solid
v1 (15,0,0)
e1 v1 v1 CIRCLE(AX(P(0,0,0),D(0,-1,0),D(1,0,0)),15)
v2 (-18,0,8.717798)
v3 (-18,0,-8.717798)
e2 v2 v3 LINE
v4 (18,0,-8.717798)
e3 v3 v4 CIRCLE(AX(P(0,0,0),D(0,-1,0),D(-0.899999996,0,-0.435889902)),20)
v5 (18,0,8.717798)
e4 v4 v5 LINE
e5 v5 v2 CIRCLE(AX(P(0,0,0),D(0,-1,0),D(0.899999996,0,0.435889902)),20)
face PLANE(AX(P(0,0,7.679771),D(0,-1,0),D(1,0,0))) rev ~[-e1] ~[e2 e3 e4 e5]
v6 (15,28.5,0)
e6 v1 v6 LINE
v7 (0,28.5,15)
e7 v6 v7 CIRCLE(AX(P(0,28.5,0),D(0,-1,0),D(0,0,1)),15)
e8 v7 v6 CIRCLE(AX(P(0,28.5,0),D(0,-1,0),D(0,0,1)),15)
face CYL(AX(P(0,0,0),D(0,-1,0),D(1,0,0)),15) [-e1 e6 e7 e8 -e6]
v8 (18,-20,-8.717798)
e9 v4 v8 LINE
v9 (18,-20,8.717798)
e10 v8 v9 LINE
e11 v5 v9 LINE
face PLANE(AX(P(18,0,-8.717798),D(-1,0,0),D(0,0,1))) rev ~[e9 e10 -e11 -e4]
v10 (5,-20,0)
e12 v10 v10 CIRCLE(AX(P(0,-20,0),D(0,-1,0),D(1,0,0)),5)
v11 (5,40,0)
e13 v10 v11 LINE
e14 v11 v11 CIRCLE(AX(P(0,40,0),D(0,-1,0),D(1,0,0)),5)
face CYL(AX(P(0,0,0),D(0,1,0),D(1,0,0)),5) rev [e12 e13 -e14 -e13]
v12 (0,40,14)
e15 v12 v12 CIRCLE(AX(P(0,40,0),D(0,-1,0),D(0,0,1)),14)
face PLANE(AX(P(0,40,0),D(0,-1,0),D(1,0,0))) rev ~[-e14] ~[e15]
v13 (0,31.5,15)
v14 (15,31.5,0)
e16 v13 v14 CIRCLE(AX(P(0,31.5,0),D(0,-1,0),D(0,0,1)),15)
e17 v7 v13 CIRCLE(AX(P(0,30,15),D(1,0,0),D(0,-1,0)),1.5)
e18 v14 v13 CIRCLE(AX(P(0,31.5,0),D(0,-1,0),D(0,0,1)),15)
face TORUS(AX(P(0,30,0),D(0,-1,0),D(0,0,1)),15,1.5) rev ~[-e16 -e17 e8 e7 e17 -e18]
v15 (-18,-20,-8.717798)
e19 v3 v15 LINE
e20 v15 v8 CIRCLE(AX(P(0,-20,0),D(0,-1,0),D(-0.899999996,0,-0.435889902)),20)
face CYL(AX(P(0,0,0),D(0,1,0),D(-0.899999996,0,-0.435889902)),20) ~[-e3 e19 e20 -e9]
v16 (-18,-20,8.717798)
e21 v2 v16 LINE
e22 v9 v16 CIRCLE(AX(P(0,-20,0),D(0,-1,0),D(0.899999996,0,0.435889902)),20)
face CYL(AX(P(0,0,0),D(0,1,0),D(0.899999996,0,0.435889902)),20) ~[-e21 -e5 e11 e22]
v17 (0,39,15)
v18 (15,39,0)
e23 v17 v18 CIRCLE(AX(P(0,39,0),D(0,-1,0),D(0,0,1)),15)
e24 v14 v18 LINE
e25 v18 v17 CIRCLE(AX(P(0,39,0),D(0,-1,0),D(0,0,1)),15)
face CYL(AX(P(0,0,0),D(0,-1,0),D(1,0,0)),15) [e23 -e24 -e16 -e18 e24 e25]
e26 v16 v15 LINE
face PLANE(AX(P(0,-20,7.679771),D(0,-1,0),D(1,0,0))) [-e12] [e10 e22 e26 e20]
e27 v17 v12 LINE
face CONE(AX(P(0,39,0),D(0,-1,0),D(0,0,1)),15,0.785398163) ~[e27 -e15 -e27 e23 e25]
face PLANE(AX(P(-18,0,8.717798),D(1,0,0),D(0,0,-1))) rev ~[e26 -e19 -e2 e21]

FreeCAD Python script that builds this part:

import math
import FreeCAD as App
import Part
import Sketcher
Q = App.Units.Quantity

doc = App.newDocument("Part")
body = doc.addObject("PartDesign::Body", "Body")

# Sketch on XZ plane
sketch1 = body.newObject("Sketcher::SketchObject", "Sketch")
sketch1.AttachmentSupport = (doc.getObject("XZ_Plane"), [""])
sketch1.MapMode = "FlatFace"
sketch1.addGeometry(Part.ArcOfCircle(Part.Circle(App.Vector(0, 0, 0), App.Vector(0, 0, 1), 20), math.radians(26), math.radians(154)), False)
sketch1.addGeometry(Part.LineSegment(App.Vector(-18, 9, 0), App.Vector(-18, -9, 0)), False)
sketch1.addGeometry(Part.ArcOfCircle(Part.Circle(App.Vector(0, 0, 0), App.Vector(0, 0, 1), 20), math.radians(-154), math.radians(-26)), False)
sketch1.addGeometry(Part.LineSegment(App.Vector(18, -9, 0), App.Vector(18, 9, 0)), False)
sketch1.addConstraint(Sketcher.Constraint("Coincident", 0, 2, 1, 1))
sketch1.addConstraint(Sketcher.Constraint("Coincident", 1, 2, 2, 1))
sketch1.addConstraint(Sketcher.Constraint("Coincident", 2, 2, 3, 1))
sketch1.addConstraint(Sketcher.Constraint("Coincident", 3, 2, 0, 1))
sketch1.addConstraint(Sketcher.Constraint("Vertical", 1))
sketch1.addConstraint(Sketcher.Constraint("Vertical", 3))
sketch1.addConstraint(Sketcher.Constraint("Coincident", 0, 3, -1, 1))
sketch1.addConstraint(Sketcher.Constraint("Coincident", 2, 3, -1, 1))
sketch1.addConstraint(Sketcher.Constraint("Equal", 0, 2))
sketch1.addConstraint(Sketcher.Constraint("Horizontal", 1, 2, 2, 2))
sketch1.addConstraint(Sketcher.Constraint("Radius", 0, Q("20 mm")))
sketch1.addConstraint(Sketcher.Constraint("DistanceX", 0, 2, -1, 1, Q("18 mm")))
pad1 = body.newObject("PartDesign::Pad", "Pad")
pad1.Profile = sketch1
pad1.Length = 20

# Sketch on XZ plane
sketch2 = body.newObject("Sketcher::SketchObject", "Sketch001")
sketch2.AttachmentSupport = (doc.getObject("XZ_Plane"), [""])
sketch2.MapMode = "FlatFace"
sketch2.addGeometry(Part.Circle(App.Vector(0, 0, 0), App.Vector(0, 0, 1), 15), False)
sketch2.addConstraint(Sketcher.Constraint("Coincident", 0, 3, -1, 1))
sketch2.addConstraint(Sketcher.Constraint("Diameter", 0, Q("30 mm")))
pad2 = body.newObject("PartDesign::Pad", "Pad001")
pad2.Profile = sketch2
pad2.Length = 40
pad2.Reversed = True

# Sketch on XZ plane
sketch3 = body.newObject("Sketcher::SketchObject", "Sketch002")
sketch3.AttachmentSupport = (doc.getObject("XZ_Plane"), [""])
sketch3.MapMode = "FlatFace"
sketch3.addGeometry(Part.Circle(App.Vector(0, 0, 0), App.Vector(0, 0, 1), 5), False)
sketch3.addConstraint(Sketcher.Constraint("Coincident", 0, 3, -1, 1))
sketch3.addConstraint(Sketcher.Constraint("Diameter", 0, Q("10 mm")))
pocket1 = body.newObject("PartDesign::Pocket", "Pocket")
pocket1.Profile = sketch3
pocket1.Type = "ThroughAll"

# Sketch on XZ plane
sketch4 = body.newObject("Sketcher::SketchObject", "Sketch003")
sketch4.AttachmentSupport = (doc.getObject("XZ_Plane"), [""])
sketch4.MapMode = "FlatFace"
sketch4.addGeometry(Part.Circle(App.Vector(0, 0, 0), App.Vector(0, 0, 1), 5), False)
sketch4.addConstraint(Sketcher.Constraint("Coincident", 0, 3, -1, 1))
sketch4.addConstraint(Sketcher.Constraint("Diameter", 0, Q("10 mm")))
pocket2 = body.newObject("PartDesign::Pocket", "Pocket001")
pocket2.Profile = sketch4
pocket2.Type = "ThroughAll"
pocket2.Reversed = True

# Sketch on YZ plane
sketch5 = body.newObject("Sketcher::SketchObject", "Sketch004")
sketch5.AttachmentSupport = (doc.getObject("YZ_Plane"), [""])
sketch5.MapMode = "FlatFace"
sketch5.addGeometry(Part.ArcOfCircle(Part.Circle(App.Vector(30, 15, 0), App.Vector(0, 0, 1), 1.5), math.radians(180), math.radians(360)), False)
sketch5.addGeometry(Part.LineSegment(App.Vector(31.5, 15, 0), App.Vector(28.5, 15, 0)), False)
sketch5.addConstraint(Sketcher.Constraint("Coincident", 0, 1, 1, 2))
sketch5.addConstraint(Sketcher.Constraint("Coincident", 1, 1, 0, 2))
sketch5.addConstraint(Sketcher.Constraint("Horizontal", 1))
sketch5.addConstraint(Sketcher.Constraint("Radius", 0, Q("1.5 mm")))
sketch5.addConstraint(Sketcher.Constraint("DistanceX", -1, 1, 0, 3, Q("30 mm")))
sketch5.addConstraint(Sketcher.Constraint("DistanceY", -1, 1, 0, 3, Q("15 mm")))
sketch5.addConstraint(Sketcher.Constraint("DistanceY", -1, 1, 0, 1, Q("15 mm")))
groove = body.newObject("PartDesign::Groove", "Groove")
groove.Profile = sketch5
groove.ReferenceAxis = (sketch5, ["H_Axis"])
groove.Angle = 360

# Sketch on YZ plane
sketch6 = body.newObject("Sketcher::SketchObject", "Sketch005")
sketch6.AttachmentSupport = (doc.getObject("YZ_Plane"), [""])
sketch6.MapMode = "FlatFace"
sketch6.addGeometry(Part.LineSegment(App.Vector(39, 15, 0), App.Vector(40, 14, 0)), False)
sketch6.addGeometry(Part.LineSegment(App.Vector(40, 14, 0), App.Vector(40, 15, 0)), False)
sketch6.addGeometry(Part.LineSegment(App.Vector(40, 15, 0), App.Vector(39, 15, 0)), False)
sketch6.addConstraint(Sketcher.Constraint("Coincident", 0, 2, 1, 1))
sketch6.addConstraint(Sketcher.Constraint("Coincident", 1, 2, 2, 1))
sketch6.addConstraint(Sketcher.Constraint("Coincident", 2, 2, 0, 1))
sketch6.addConstraint(Sketcher.Constraint("Vertical", 1))
sketch6.addConstraint(Sketcher.Constraint("Horizontal", 2))
sketch6.addConstraint(Sketcher.Constraint("Equal", 2, 1))
sketch6.addConstraint(Sketcher.Constraint("DistanceX", 2, 2, 2, 1, Q("1 mm")))
sketch6.addConstraint(Sketcher.Constraint("DistanceX", -1, 1, 0, 2, Q("40 mm")))
sketch6.addConstraint(Sketcher.Constraint("DistanceY", -1, 1, 0, 2, Q("14 mm")))
groove2 = body.newObject("PartDesign::Groove", "Groove001")
groove2.Profile = sketch6
groove2.ReferenceAxis = (sketch6, ["H_Axis"])
groove2.Angle = 360

doc.recompute()
